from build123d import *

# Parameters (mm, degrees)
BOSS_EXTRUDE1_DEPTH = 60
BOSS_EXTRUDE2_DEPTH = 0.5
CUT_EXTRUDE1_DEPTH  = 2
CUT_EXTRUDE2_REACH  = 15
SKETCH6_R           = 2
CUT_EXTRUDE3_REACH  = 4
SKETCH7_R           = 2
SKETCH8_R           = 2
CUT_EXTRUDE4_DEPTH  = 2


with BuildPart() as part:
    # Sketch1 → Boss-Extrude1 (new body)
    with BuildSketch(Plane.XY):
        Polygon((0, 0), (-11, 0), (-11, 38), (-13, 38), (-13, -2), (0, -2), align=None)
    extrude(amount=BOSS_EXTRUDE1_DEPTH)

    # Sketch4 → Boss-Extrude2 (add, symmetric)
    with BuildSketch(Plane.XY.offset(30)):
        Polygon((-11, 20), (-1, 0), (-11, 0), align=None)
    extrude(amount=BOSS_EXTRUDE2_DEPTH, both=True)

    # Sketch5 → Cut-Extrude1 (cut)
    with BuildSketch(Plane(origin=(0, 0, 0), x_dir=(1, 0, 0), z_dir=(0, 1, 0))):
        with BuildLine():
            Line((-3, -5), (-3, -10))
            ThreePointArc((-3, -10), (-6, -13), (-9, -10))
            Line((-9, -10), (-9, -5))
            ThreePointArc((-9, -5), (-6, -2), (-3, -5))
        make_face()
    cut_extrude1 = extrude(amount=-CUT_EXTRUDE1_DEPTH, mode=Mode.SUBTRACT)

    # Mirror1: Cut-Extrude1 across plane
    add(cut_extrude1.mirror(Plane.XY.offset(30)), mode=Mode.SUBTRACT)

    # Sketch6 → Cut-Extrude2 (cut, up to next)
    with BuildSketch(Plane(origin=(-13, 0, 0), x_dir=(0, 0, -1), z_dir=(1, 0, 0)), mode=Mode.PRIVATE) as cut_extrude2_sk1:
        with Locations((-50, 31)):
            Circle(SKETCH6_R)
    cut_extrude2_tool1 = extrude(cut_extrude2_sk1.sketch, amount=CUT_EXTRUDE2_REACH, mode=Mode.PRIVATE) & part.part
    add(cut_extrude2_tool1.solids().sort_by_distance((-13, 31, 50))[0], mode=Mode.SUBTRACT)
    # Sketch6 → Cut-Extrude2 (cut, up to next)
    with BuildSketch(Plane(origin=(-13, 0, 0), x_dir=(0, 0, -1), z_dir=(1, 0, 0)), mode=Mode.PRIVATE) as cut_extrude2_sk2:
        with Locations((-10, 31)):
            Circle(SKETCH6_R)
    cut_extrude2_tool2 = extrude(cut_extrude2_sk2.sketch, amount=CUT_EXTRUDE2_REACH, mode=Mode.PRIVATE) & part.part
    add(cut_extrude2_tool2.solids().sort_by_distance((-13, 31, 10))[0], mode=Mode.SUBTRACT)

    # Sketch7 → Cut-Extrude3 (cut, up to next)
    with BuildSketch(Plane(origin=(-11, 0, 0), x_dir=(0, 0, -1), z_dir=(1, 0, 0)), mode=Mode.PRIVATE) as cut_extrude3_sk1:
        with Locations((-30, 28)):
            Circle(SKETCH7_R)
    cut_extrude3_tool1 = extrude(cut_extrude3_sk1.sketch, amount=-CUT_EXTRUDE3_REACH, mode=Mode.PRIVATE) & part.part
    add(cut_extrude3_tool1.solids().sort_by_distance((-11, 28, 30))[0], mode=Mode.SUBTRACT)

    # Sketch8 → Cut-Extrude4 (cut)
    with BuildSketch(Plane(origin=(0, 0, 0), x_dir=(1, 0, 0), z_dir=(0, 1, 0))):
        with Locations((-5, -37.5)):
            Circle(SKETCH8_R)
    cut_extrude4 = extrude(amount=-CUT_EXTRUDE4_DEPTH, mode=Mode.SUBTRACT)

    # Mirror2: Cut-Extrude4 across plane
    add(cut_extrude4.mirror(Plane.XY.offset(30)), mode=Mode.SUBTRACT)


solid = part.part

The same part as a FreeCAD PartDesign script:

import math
import FreeCAD as App
import Part
import Sketcher

V = App.Vector
Q = App.Units.Quantity


def add_polygon(sketch, points):
    """Adds a closed chain of lines whose ends are joined by coincident constraints."""
    first, n = sketch.GeometryCount, len(points)
    for a, b in zip(points, points[1:] + points[:1]):
        sketch.addGeometry(Part.LineSegment(App.Vector(*a, 0), App.Vector(*b, 0)), False)
    for i in range(n):
        sketch.addConstraint(Sketcher.Constraint("Coincident", first + i, 2, first + (i + 1) % n, 1))

doc = App.newDocument("Part")
body = doc.addObject("PartDesign::Body", "Body")

sketch1 = doc.addObject("Sketcher::SketchObject", "Sketch")
body.addObject(sketch1)
sketch1.AttachmentSupport = (doc.XY_Plane, [""])
sketch1.MapMode = "FlatFace"
add_polygon(sketch1, [(0, 0), (-11, 0), (-11, 38), (-13, 38), (-13, -2), (0, -2)])
sketch1.addConstraint(Sketcher.Constraint("Horizontal", 0))
sketch1.addConstraint(Sketcher.Constraint("Vertical", 1))
sketch1.addConstraint(Sketcher.Constraint("Horizontal", 2))
sketch1.addConstraint(Sketcher.Constraint("Vertical", 3))
sketch1.addConstraint(Sketcher.Constraint("Horizontal", 4))
sketch1.addConstraint(Sketcher.Constraint("Vertical", 5))
sketch1.addConstraint(Sketcher.Constraint("Coincident", 5, 2, -1, 1))
sketch1.addConstraint(Sketcher.Constraint("Equal", 2, 5))
sketch1.addConstraint(Sketcher.Constraint("DistanceX", 0, 2, 0, 1, Q("11 mm")))
sketch1.addConstraint(Sketcher.Constraint("DistanceX", 2, 2, 2, 1, Q("2 mm")))
sketch1.addConstraint(Sketcher.Constraint("DistanceY", 1, 1, 1, 2, Q("38 mm")))
pad1 = doc.addObject("PartDesign::Pad", "Pad")
body.addObject(pad1)
pad1.Profile = sketch1
pad1.Length = 60

sketch2 = doc.addObject("Sketcher::SketchObject", "Sketch001")
body.addObject(sketch2)
sketch2.AttachmentSupport = (doc.XY_Plane, [""])
sketch2.MapMode = "FlatFace"
sketch2.AttachmentOffset = App.Placement(V(0, 0, 30), App.Rotation())
add_polygon(sketch2, [(-1, 0), (-11, 20), (-11, 0)])
sketch2.addConstraint(Sketcher.Constraint("Vertical", 1))
sketch2.addConstraint(Sketcher.Constraint("Horizontal", 2))
sketch2.addConstraint(Sketcher.Constraint("PointOnObject", 1, 2, -1))
sketch2.addConstraint(Sketcher.Constraint("DistanceX", 2, 1, 2, 2, Q("10 mm")))
sketch2.addConstraint(Sketcher.Constraint("DistanceY", 1, 2, 1, 1, Q("20 mm")))
sketch2.addConstraint(Sketcher.Constraint("DistanceX", 0, 2, -1, 1, Q("11 mm")))
pad2 = doc.addObject("PartDesign::Pad", "Pad001")
body.addObject(pad2)
pad2.Profile = sketch2
pad2.Length = 1
pad2.Midplane = True

sketch3 = doc.addObject("Sketcher::SketchObject", "Sketch002")
body.addObject(sketch3)
sketch3.AttachmentSupport = (doc.XZ_Plane, [""])
sketch3.MapMode = "FlatFace"
sketch3.addGeometry(Part.LineSegment(V(-3, 10, 0), V(-3, 5, 0)), False)
sketch3.addGeometry(Part.ArcOfCircle(Part.Circle(V(-6, 5, 0), V(0, 0, 1), 3), math.radians(180), math.radians(360)), False)
sketch3.addGeometry(Part.LineSegment(V(-9, 5, 0), V(-9, 10, 0)), False)
sketch3.addGeometry(Part.ArcOfCircle(Part.Circle(V(-6, 10, 0), V(0, 0, 1), 3), math.radians(0), math.radians(180)), False)
sketch3.addConstraint(Sketcher.Constraint("Tangent", 0, 2, 1, 2))
sketch3.addConstraint(Sketcher.Constraint("Tangent", 1, 1, 2, 1))
sketch3.addConstraint(Sketcher.Constraint("Tangent", 2, 2, 3, 2))
sketch3.addConstraint(Sketcher.Constraint("Tangent", 3, 1, 0, 1))
sketch3.addConstraint(Sketcher.Constraint("Vertical", 0))
sketch3.addConstraint(Sketcher.Constraint("Vertical", 2))
sketch3.addConstraint(Sketcher.Constraint("Radius", 1, Q("3 mm")))
sketch3.addConstraint(Sketcher.Constraint("DistanceY", 0, 2, 0, 1, Q("5 mm")))
sketch3.addConstraint(Sketcher.Constraint("DistanceX", 1, 3, -1, 1, Q("6 mm")))
sketch3.addConstraint(Sketcher.Constraint("DistanceY", -1, 1, 1, 3, Q("5 mm")))
pocket1 = doc.addObject("PartDesign::Pocket", "Pocket")
body.addObject(pocket1)
pocket1.Profile = sketch3
pocket1.Length = 2
pocket1.Reversed = True
doc.recompute()

datumplane = doc.addObject("PartDesign::Plane", "DatumPlane")
body.addObject(datumplane)
datumplane.AttachmentSupport = (doc.XY_Plane, [""])
datumplane.MapMode = "FlatFace"
datumplane.AttachmentOffset = App.Placement(V(0, 0, 30), App.Rotation())
mirrored = doc.addObject("PartDesign::Mirrored", "Mirrored")
body.addObject(mirrored)
mirrored.Originals = [pocket1]
mirrored.MirrorPlane = (datumplane, [""])
body.Tip = mirrored

sketch4 = doc.addObject("Sketcher::SketchObject", "Sketch003")
body.addObject(sketch4)
sketch4.AttachmentSupport = (doc.YZ_Plane, [""])
sketch4.MapMode = "FlatFace"
sketch4.AttachmentOffset = App.Placement(V(0, 0, -13), App.Rotation())
sketch4.addGeometry(Part.Circle(V(31, 50, 0), V(0, 0, 1), 2), False)
sketch4.addConstraint(Sketcher.Constraint("Diameter", 0, Q("4 mm")))
sketch4.addConstraint(Sketcher.Constraint("DistanceX", -1, 1, 0, 3, Q("31 mm")))
sketch4.addConstraint(Sketcher.Constraint("DistanceY", -1, 1, 0, 3, Q("50 mm")))
pocket2 = doc.addObject("PartDesign::Pocket", "Pocket001")
body.addObject(pocket2)
pocket2.Profile = sketch4
pocket2.Type = "UpToFirst"
pocket2.Reversed = True

sketch5 = doc.addObject("Sketcher::SketchObject", "Sketch004")
body.addObject(sketch5)
sketch5.AttachmentSupport = (doc.YZ_Plane, [""])
sketch5.MapMode = "FlatFace"
sketch5.AttachmentOffset = App.Placement(V(0, 0, -13), App.Rotation())
sketch5.addGeometry(Part.Circle(V(31, 10, 0), V(0, 0, 1), 2), False)
sketch5.addConstraint(Sketcher.Constraint("Diameter", 0, Q("4 mm")))
sketch5.addConstraint(Sketcher.Constraint("DistanceX", -1, 1, 0, 3, Q("31 mm")))
sketch5.addConstraint(Sketcher.Constraint("DistanceY", -1, 1, 0, 3, Q("10 mm")))
pocket3 = doc.addObject("PartDesign::Pocket", "Pocket002")
body.addObject(pocket3)
pocket3.Profile = sketch5
pocket3.Type = "UpToFirst"
pocket3.Reversed = True

sketch6 = doc.addObject("Sketcher::SketchObject", "Sketch005")
body.addObject(sketch6)
sketch6.AttachmentSupport = (doc.YZ_Plane, [""])
sketch6.MapMode = "FlatFace"
sketch6.AttachmentOffset = App.Placement(V(0, 0, -11), App.Rotation())
sketch6.addGeometry(Part.Circle(V(28, 30, 0), V(0, 0, 1), 2), False)
sketch6.addConstraint(Sketcher.Constraint("Diameter", 0, Q("4 mm")))
sketch6.addConstraint(Sketcher.Constraint("DistanceX", -1, 1, 0, 3, Q("28 mm")))
sketch6.addConstraint(Sketcher.Constraint("DistanceY", -1, 1, 0, 3, Q("30 mm")))
pocket4 = doc.addObject("PartDesign::Pocket", "Pocket003")
body.addObject(pocket4)
pocket4.Profile = sketch6
pocket4.Type = "UpToFirst"

sketch7 = doc.addObject("Sketcher::SketchObject", "Sketch006")
body.addObject(sketch7)
sketch7.AttachmentSupport = (doc.XZ_Plane, [""])
sketch7.MapMode = "FlatFace"
sketch7.addGeometry(Part.Circle(V(-5, 37.5, 0), V(0, 0, 1), 2), False)
sketch7.addConstraint(Sketcher.Constraint("Diameter", 0, Q("4 mm")))
sketch7.addConstraint(Sketcher.Constraint("DistanceX", 0, 3, -1, 1, Q("5 mm")))
sketch7.addConstraint(Sketcher.Constraint("DistanceY", -1, 1, 0, 3, Q("37.5 mm")))
pocket5 = doc.addObject("PartDesign::Pocket", "Pocket004")
body.addObject(pocket5)
pocket5.Profile = sketch7
pocket5.Length = 2
pocket5.Reversed = True
doc.recompute()

datumplane2 = doc.addObject("PartDesign::Plane", "DatumPlane001")
body.addObject(datumplane2)
datumplane2.AttachmentSupport = (doc.XY_Plane, [""])
datumplane2.MapMode = "FlatFace"
datumplane2.AttachmentOffset = App.Placement(V(0, 0, 30), App.Rotation())
mirrored2 = doc.addObject("PartDesign::Mirrored", "Mirrored001")
body.addObject(mirrored2)
mirrored2.Originals = [pocket5]
mirrored2.MirrorPlane = (datumplane2, [""])
body.Tip = mirrored2

doc.recompute()
